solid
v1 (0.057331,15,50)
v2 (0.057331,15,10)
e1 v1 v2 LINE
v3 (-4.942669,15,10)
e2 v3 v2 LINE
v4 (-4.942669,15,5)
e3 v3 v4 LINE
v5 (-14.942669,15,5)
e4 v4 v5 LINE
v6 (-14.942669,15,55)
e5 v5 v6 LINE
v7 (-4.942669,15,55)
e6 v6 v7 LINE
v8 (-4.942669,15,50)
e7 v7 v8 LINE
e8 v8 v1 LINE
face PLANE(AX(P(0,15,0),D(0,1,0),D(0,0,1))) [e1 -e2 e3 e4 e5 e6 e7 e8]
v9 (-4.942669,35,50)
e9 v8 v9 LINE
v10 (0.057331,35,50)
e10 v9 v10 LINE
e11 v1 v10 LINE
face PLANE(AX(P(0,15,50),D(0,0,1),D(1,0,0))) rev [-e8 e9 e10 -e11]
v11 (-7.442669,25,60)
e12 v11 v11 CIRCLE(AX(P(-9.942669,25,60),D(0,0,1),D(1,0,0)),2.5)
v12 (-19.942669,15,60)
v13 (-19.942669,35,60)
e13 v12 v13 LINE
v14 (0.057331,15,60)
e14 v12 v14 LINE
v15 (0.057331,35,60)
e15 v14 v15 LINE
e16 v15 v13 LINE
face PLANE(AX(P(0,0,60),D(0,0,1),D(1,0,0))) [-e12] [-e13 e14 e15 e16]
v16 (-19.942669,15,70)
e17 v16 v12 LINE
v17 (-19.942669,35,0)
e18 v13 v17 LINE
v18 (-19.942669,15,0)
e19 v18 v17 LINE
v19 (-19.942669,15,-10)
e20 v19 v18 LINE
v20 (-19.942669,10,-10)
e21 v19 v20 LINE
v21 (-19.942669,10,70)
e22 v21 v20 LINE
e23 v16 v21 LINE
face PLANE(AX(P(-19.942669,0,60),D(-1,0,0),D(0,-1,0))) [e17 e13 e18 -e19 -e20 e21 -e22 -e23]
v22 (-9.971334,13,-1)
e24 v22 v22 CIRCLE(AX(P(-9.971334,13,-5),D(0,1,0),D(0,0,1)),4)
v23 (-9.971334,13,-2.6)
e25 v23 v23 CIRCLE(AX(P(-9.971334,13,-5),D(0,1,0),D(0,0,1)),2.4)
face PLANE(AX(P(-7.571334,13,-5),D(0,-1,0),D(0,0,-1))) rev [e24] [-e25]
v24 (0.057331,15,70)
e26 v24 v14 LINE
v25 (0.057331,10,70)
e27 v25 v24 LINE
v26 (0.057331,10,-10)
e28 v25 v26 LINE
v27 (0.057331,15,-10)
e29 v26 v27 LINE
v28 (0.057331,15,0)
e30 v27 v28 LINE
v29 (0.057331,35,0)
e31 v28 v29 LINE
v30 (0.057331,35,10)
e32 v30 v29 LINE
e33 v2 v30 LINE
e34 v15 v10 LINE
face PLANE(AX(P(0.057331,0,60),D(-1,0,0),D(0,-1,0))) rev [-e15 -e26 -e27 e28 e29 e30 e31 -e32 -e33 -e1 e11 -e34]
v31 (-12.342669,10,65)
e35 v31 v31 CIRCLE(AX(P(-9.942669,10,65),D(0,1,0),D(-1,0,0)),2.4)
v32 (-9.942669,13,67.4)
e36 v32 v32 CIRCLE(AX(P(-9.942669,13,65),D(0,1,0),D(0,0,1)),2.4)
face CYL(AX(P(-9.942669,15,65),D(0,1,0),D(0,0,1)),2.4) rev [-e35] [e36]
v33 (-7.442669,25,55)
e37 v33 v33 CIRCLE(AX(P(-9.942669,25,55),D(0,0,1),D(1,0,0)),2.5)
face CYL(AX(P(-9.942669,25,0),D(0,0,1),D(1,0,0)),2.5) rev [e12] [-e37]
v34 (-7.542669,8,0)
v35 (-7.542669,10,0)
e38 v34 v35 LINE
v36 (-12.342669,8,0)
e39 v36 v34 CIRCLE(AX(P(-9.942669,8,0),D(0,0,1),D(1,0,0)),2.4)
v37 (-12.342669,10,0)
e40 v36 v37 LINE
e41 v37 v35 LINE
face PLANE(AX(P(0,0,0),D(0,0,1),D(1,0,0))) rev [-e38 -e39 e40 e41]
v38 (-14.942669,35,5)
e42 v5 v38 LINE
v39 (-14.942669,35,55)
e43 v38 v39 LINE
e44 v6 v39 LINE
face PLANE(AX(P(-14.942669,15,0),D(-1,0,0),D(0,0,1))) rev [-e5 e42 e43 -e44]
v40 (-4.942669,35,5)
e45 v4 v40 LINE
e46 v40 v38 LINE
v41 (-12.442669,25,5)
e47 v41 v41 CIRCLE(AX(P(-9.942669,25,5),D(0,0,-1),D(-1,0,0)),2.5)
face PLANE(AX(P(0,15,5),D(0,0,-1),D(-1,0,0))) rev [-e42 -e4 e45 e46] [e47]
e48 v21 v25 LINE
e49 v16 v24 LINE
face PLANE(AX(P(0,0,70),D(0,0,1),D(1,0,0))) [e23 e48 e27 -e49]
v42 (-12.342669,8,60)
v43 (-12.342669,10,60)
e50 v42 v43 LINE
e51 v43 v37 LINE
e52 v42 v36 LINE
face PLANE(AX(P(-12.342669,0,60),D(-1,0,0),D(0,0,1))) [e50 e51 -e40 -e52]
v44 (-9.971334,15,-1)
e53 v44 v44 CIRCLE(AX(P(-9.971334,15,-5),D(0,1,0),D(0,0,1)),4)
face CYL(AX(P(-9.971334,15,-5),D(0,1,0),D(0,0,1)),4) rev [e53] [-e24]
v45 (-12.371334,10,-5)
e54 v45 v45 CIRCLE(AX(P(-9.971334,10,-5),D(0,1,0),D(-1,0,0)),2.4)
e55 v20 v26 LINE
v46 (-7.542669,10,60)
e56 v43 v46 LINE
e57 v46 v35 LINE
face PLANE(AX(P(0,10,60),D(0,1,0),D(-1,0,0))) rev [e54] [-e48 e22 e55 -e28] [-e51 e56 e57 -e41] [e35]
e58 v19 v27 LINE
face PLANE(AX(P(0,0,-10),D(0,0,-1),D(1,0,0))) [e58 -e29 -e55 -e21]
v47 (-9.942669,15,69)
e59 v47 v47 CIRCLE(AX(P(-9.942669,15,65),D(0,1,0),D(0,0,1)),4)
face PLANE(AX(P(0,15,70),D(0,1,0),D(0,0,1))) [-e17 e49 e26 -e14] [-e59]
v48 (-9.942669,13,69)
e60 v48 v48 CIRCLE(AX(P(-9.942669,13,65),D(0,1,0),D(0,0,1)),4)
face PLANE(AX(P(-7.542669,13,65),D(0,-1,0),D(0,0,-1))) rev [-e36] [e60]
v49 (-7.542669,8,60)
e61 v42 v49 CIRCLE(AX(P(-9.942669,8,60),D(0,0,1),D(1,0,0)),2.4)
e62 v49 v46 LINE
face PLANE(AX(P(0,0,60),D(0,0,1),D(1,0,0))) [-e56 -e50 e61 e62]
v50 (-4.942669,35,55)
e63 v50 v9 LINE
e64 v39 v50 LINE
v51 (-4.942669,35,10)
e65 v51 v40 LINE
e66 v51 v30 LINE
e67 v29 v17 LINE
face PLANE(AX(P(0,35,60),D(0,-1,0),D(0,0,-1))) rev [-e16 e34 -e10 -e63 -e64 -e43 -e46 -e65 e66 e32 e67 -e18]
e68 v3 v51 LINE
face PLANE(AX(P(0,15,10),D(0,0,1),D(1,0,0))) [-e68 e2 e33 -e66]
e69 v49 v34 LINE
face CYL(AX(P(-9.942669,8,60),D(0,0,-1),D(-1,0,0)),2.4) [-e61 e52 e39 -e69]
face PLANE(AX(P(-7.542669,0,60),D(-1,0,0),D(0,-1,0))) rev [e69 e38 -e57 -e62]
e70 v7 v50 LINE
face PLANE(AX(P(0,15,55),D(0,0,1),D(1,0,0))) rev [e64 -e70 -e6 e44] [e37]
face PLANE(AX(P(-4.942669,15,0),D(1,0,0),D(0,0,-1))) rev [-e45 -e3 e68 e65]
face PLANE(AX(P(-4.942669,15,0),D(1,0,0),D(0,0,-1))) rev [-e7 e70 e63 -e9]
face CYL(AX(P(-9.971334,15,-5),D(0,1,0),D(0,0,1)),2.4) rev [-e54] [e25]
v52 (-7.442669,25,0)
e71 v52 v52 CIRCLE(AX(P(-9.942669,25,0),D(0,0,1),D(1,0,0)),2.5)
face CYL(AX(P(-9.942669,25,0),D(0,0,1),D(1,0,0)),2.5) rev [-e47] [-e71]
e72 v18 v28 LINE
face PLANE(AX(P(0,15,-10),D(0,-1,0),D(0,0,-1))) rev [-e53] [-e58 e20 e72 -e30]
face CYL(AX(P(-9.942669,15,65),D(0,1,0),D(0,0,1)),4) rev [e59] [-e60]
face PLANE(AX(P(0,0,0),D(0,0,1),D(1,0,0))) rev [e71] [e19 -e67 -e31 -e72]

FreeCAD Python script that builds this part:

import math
import FreeCAD as App
import Part
import Sketcher

V = App.Vector


def add_polygon(sketch, points):
    """Adds a closed chain of lines whose ends are joined by coincident constraints."""
    first, n = sketch.GeometryCount, len(points)
    for a, b in zip(points, points[1:] + points[:1]):
        sketch.addGeometry(Part.LineSegment(App.Vector(*a, 0), App.Vector(*b, 0)), False)
    for i in range(n):
        sketch.addConstraint(Sketcher.Constraint("Coincident", first + i, 2, first + (i + 1) % n, 1))

doc = App.newDocument("Part")
body = doc.addObject("PartDesign::Body", "Body")

# Sketch on XY plane
sketch1 = doc.addObject("Sketcher::SketchObject", "Sketch")
body.addObject(sketch1)
sketch1.AttachmentSupport = (doc.XY_Plane, [""])
sketch1.MapMode = "FlatFace"
sketch1.addGeometry([
    Part.LineSegment(V(-19.942669, 35, 0), V(-19.942669, 10, 0)),  # 0
    Part.LineSegment(V(-19.942669, 10, 0), V(-12.342669, 10, 0)),  # 1
    Part.LineSegment(V(-12.342669, 10, 0), V(-12.342669, 8, 0)),  # 2
    Part.ArcOfCircle(Part.Circle(V(-9.942669, 8, 0), V(0, 0, 1), 2.4), math.radians(180), math.radians(360)),  # 3
    Part.LineSegment(V(-7.542669, 8, 0), V(-7.542669, 10, 0)),  # 4
    Part.LineSegment(V(-7.542669, 10, 0), V(0.057331, 10, 0)),  # 5
    Part.LineSegment(V(0.057331, 10, 0), V(0.057331, 35, 0)),  # 6
    Part.LineSegment(V(0.057331, 35, 0), V(-19.942669, 35, 0)),  # 7
], False)
sketch1.addConstraint([
    Sketcher.Constraint("Coincident", 0, 2, 1, 1),
    Sketcher.Constraint("Coincident", 1, 2, 2, 1),
    Sketcher.Constraint("Tangent", 2, 2, 3, 1),
    Sketcher.Constraint("Tangent", 3, 2, 4, 1),
    Sketcher.Constraint("Coincident", 4, 2, 5, 1),
    Sketcher.Constraint("Coincident", 5, 2, 6, 1),
    Sketcher.Constraint("Coincident", 6, 2, 7, 1),
    Sketcher.Constraint("Coincident", 7, 2, 0, 1),
    Sketcher.Constraint("Vertical", 0),
    Sketcher.Constraint("Horizontal", 1),
    Sketcher.Constraint("Vertical", 2),
    Sketcher.Constraint("Vertical", 4),
    Sketcher.Constraint("Horizontal", 5),
    Sketcher.Constraint("Vertical", 6),
    Sketcher.Constraint("Horizontal", 7),
    Sketcher.Constraint("Horizontal", 1, 2, 4, 2),
    Sketcher.Constraint("Equal", 1, 5),
    Sketcher.Constraint("Radius", 3, 2.4),
    Sketcher.Constraint("DistanceX", 7, 2, 7, 1, 20.0),
    Sketcher.Constraint("DistanceY", 0, 2, 0, 1, 25.0),
    Sketcher.Constraint("DistanceY", 2, 2, 2, 1, 2.0),
    Sketcher.Constraint("DistanceY", -1, 1, 3, 3, 8.0),
    Sketcher.Constraint("DistanceX", 3, 3, -1, 1, 9.942669),
])
pad1 = doc.addObject("PartDesign::Pad", "Pad")
body.addObject(pad1)
pad1.Profile = sketch1
pad1.Length = 60

# Sketch on XZ plane
sketch2 = doc.addObject("Sketcher::SketchObject", "Sketch001")
body.addObject(sketch2)
sketch2.AttachmentSupport = (doc.XZ_Plane, [""])
sketch2.MapMode = "FlatFace"
sketch2.AttachmentOffset = App.Placement(V(0, 0, -35), App.Rotation())
add_polygon(sketch2, [(0.057331, 50), (0.057331, 10), (-4.942669, 10), (-4.942669, 5), (-14.942669, 5), (-14.942669, 55), (-4.942669, 55), (-4.942669, 50)])  # lines 0-7
sketch2.addConstraint([
    Sketcher.Constraint("Vertical", 0),
    Sketcher.Constraint("Horizontal", 1),
    Sketcher.Constraint("Vertical", 2),
    Sketcher.Constraint("Horizontal", 3),
    Sketcher.Constraint("Vertical", 4),
    Sketcher.Constraint("Horizontal", 5),
    Sketcher.Constraint("Vertical", 6),
    Sketcher.Constraint("Horizontal", 7),
    Sketcher.Constraint("Vertical", 2, 2, 5, 2),
    Sketcher.Constraint("Equal", 7, 2),
    Sketcher.Constraint("Equal", 2, 6),
    Sketcher.Constraint("DistanceX", 1, 2, 1, 1, 5.0),
    Sketcher.Constraint("DistanceX", 3, 2, 3, 1, 10.0),
    Sketcher.Constraint("DistanceY", 0, 2, 0, 1, 40.0),
    Sketcher.Constraint("DistanceY", -1, 1, 0, 2, 10.0),
    Sketcher.Constraint("DistanceX", -1, 1, 0, 2, 0.057331),
])
pocket1 = doc.addObject("PartDesign::Pocket", "Pocket")
body.addObject(pocket1)
pocket1.Profile = sketch2
pocket1.Length = 20
pocket1.Reversed = True

# Sketch on XY plane
sketch3 = doc.addObject("Sketcher::SketchObject", "Sketch002")
body.addObject(sketch3)
sketch3.AttachmentSupport = (doc.XY_Plane, [""])
sketch3.MapMode = "FlatFace"
sketch3.AttachmentOffset = App.Placement(V(0, 0, 5), App.Rotation())
sketch3.addGeometry([
    Part.ArcOfCircle(Part.Circle(V(-9.942669, 25, 0), V(0, 0, 1), 2.5), math.radians(63.434949), math.radians(243.434949)),
    Part.ArcOfCircle(Part.Circle(V(-9.942669, 25, 0), V(0, 0, 1), 2.5), math.radians(-116.565051), math.radians(0)),
    Part.ArcOfCircle(Part.Circle(V(-9.942669, 25, 0), V(0, 0, 1), 2.5), math.radians(0), math.radians(63.434949)),
], False)
sketch3.addConstraint([
    Sketcher.Constraint("Tangent", 0, 2, 1, 1),
    Sketcher.Constraint("Tangent", 1, 2, 2, 1),
    Sketcher.Constraint("Tangent", 2, 2, 0, 1),
    Sketcher.Constraint("Horizontal", 2, 3, 1, 2),
    Sketcher.Constraint("Radius", 0, 2.5),
    Sketcher.Constraint("DistanceY", -1, 1, 0, 3, 25.0),
    Sketcher.Constraint("DistanceX", 0, 3, -1, 1, 9.942669),
    Sketcher.Constraint("DistanceX", 0, 2, -1, 1, 11.060703),
    Sketcher.Constraint("DistanceX", 2, 2, -1, 1, 8.824635),
])
pocket2 = doc.addObject("PartDesign::Pocket", "Pocket001")
body.addObject(pocket2)
pocket2.Profile = sketch3
pocket2.Type = "ThroughAll"
pocket2.Midplane = True

# Sketch on XY plane
sketch4 = doc.addObject("Sketcher::SketchObject", "Sketch003")
body.addObject(sketch4)
sketch4.AttachmentSupport = (doc.XY_Plane, [""])
sketch4.MapMode = "FlatFace"
sketch4.AttachmentOffset = App.Placement(V(0, 0, 60), App.Rotation())
add_polygon(sketch4, [(-19.942669, 15), (-19.942669, 10), (0.057331, 10), (0.057331, 15)])  # lines 0-3
sketch4.addConstraint([
    Sketcher.Constraint("Vertical", 0),
    Sketcher.Constraint("Horizontal", 1),
    Sketcher.Constraint("Vertical", 2),
    Sketcher.Constraint("Horizontal", 3),
    Sketcher.Constraint("DistanceX", 1, 1, 1, 2, 20.0),
    Sketcher.Constraint("DistanceY", 0, 2, 0, 1, 5.0),
    Sketcher.Constraint("DistanceY", -1, 1, 0, 2, 10.0),
    Sketcher.Constraint("DistanceX", 0, 2, -1, 1, 19.942669),
])
pad2 = doc.addObject("PartDesign::Pad", "Pad001")
body.addObject(pad2)
pad2.Profile = sketch4
pad2.Length = 10
doc.recompute()

datumplane = doc.addObject("PartDesign::Plane", "DatumPlane")
body.addObject(datumplane)
datumplane.AttachmentSupport = (doc.XY_Plane, [""])
datumplane.MapMode = "FlatFace"
datumplane.AttachmentOffset = App.Placement(V(0, 0, 30), App.Rotation())
mirrored = doc.addObject("PartDesign::Mirrored", "Mirrored")
body.addObject(mirrored)
mirrored.Originals = [pad2]
mirrored.MirrorPlane = (datumplane, [""])
body.Tip = mirrored

# Sketch on XZ plane
sketch5 = doc.addObject("Sketcher::SketchObject", "Sketch004")
body.addObject(sketch5)
sketch5.AttachmentSupport = (doc.XZ_Plane, [""])
sketch5.MapMode = "FlatFace"
sketch5.AttachmentOffset = App.Placement(V(0, 0, -15), App.Rotation())
sketch5.addGeometry([
    Part.Circle(V(-9.971334, -5, 0), V(0, 0, 1), 2.4),
    Part.Circle(V(-9.942669, 65, 0), V(0, 0, 1), 2.4),
], False)
sketch5.addConstraint([
    Sketcher.Constraint("Equal", 0, 1),
    Sketcher.Constraint("Diameter", 0, 4.8),
    Sketcher.Constraint("DistanceY", 0, 3, -1, 1, 5.0),
    Sketcher.Constraint("DistanceY", -1, 1, 1, 3, 65.0),
    Sketcher.Constraint("DistanceX", 1, 3, -1, 1, 9.942669),
    Sketcher.Constraint("DistanceX", 0, 3, -1, 1, 9.971334),
])
doc.recompute()
hole = doc.addObject("PartDesign::Hole", "Hole")
body.addObject(hole)
hole.Profile = sketch5
hole.ThreadType = "None"
hole.Diameter = 4.8
hole.DepthType = "ThroughAll"
hole.HoleCutType = "Counterbore"
hole.HoleCutDiameter = 8
hole.HoleCutDepth = 2
hole.Reversed = True

doc.recompute()
